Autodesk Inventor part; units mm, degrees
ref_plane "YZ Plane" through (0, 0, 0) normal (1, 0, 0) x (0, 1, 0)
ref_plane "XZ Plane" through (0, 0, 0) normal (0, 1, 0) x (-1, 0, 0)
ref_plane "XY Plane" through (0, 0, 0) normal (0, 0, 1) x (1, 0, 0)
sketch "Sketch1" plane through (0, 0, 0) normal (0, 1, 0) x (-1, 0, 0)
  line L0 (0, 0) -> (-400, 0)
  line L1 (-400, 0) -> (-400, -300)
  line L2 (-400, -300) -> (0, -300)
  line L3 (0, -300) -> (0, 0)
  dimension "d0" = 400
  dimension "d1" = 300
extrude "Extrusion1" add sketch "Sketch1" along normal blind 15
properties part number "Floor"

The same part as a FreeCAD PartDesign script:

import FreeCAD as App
import Part
import Sketcher

V = App.Vector

doc = App.newDocument("Part")
body = doc.addObject("PartDesign::Body", "Body")

# Sketch on XZ plane
sketch1 = doc.addObject("Sketcher::SketchObject", "Sketch")
body.addObject(sketch1)
sketch1.AttachmentSupport = (doc.XZ_Plane, [""])
sketch1.MapMode = "FlatFace"
sketch1.addGeometry([
    Part.LineSegment(V(0, -300, 0), V(0, 0, 0)),
    Part.LineSegment(V(0, 0, 0), V(400, 0, 0)),
    Part.LineSegment(V(400, 0, 0), V(400, -300, 0)),
    Part.LineSegment(V(400, -300, 0), V(0, -300, 0)),
], False)
sketch1.addConstraint([
    Sketcher.Constraint("Coincident", 0, 2, 1, 1),
    Sketcher.Constraint("Coincident", 1, 2, 2, 1),
    Sketcher.Constraint("Coincident", 2, 2, 3, 1),
    Sketcher.Constraint("Coincident", 3, 2, 0, 1),
    Sketcher.Constraint("Vertical", 0),
    Sketcher.Constraint("Horizontal", 1),
    Sketcher.Constraint("Vertical", 2),
    Sketcher.Constraint("Horizontal", 3),
    Sketcher.Constraint("Coincident", 0, 2, -1, 1),
    Sketcher.Constraint("DistanceX", 1, 1, 1, 2, 400.0),
    Sketcher.Constraint("DistanceY", 0, 1, 0, 2, 300.0),
])
pad1 = doc.addObject("PartDesign::Pad", "Pad")
body.addObject(pad1)
pad1.Profile = sketch1
pad1.Length = 15
pad1.Reversed = True

doc.recompute()
